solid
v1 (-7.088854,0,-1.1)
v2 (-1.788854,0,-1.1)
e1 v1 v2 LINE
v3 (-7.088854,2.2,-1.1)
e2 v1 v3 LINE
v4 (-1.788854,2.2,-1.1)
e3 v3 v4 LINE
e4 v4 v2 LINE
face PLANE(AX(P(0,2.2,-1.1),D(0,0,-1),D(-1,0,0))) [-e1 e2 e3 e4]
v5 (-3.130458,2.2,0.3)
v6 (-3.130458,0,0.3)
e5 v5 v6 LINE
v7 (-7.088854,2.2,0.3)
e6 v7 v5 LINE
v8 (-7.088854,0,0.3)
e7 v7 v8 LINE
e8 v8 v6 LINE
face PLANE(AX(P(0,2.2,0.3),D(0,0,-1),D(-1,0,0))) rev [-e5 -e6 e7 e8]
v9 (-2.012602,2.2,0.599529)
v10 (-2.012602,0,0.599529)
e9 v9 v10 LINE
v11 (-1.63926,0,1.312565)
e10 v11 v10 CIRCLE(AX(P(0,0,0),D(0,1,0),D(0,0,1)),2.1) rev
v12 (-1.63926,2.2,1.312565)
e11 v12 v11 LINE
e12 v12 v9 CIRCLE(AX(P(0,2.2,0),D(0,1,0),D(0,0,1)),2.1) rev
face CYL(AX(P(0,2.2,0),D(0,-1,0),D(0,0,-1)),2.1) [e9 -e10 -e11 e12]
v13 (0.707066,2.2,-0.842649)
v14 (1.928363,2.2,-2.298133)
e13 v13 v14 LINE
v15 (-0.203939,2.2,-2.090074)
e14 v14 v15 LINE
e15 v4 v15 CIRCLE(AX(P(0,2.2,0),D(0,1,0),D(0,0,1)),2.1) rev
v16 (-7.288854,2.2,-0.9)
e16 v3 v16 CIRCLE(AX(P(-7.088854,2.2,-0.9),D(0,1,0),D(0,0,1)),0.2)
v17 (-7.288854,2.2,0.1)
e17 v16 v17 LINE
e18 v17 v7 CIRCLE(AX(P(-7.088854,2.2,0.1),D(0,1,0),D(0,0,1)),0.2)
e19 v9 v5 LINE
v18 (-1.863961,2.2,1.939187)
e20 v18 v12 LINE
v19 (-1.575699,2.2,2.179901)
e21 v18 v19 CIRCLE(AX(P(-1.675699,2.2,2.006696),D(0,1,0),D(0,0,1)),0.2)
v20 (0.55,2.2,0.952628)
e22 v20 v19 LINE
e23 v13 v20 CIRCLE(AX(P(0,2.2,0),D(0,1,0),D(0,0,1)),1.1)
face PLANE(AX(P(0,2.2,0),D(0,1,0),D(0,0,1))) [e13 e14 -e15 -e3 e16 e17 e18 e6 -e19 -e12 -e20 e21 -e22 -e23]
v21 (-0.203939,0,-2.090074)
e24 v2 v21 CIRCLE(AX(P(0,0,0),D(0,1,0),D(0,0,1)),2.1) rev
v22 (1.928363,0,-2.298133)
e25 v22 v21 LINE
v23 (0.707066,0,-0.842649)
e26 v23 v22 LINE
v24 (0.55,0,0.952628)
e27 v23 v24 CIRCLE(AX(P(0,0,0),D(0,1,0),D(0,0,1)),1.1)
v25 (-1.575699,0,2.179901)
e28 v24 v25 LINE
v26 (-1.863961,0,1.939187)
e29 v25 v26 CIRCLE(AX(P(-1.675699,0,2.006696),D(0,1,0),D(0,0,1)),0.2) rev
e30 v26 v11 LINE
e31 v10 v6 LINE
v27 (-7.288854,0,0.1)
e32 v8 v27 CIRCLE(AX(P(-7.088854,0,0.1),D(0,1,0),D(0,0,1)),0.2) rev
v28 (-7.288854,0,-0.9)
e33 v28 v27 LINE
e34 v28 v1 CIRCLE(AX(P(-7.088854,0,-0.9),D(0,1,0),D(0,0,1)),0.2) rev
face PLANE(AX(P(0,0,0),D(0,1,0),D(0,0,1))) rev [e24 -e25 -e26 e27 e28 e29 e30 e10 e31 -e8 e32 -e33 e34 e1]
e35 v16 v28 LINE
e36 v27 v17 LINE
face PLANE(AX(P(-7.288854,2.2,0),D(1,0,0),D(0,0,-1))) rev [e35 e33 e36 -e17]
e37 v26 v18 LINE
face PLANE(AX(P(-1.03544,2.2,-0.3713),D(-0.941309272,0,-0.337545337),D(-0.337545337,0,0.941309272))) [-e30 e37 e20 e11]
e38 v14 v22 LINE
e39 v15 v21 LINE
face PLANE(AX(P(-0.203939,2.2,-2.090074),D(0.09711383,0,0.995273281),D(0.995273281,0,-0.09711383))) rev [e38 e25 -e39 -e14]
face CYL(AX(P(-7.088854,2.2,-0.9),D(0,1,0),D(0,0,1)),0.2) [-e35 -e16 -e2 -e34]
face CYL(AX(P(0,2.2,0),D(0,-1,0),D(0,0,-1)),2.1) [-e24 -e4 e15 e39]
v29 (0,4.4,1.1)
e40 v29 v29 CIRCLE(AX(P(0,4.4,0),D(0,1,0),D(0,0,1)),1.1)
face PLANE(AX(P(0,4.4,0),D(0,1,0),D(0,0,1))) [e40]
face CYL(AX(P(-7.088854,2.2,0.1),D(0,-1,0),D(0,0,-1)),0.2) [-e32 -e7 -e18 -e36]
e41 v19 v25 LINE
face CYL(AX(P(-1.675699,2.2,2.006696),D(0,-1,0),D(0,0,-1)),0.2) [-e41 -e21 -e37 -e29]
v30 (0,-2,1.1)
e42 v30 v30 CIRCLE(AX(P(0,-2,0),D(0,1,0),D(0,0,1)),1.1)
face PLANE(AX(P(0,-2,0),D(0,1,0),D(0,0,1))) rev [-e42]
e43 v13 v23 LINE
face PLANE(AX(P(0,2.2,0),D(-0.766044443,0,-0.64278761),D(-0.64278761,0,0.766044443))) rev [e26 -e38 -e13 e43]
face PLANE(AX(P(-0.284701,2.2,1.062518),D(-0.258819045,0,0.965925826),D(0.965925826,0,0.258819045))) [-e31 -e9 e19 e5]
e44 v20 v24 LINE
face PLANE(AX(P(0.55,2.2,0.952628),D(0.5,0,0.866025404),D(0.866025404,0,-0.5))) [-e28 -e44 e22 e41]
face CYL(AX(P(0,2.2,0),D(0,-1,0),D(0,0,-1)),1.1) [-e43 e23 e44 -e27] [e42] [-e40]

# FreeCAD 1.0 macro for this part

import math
import FreeCAD as App
import Part
import Sketcher
from FreeCAD import Vector
Q = App.Units.Quantity


def edges_at(feature, points):
    """Names of the edges that pass closest to the given points."""
    edges = feature.Shape.Edges
    near = lambda p: min(range(len(edges)), key=lambda i: edges[i].distToShape(Part.Vertex(*p))[0])
    return sorted({f"Edge{near(p) + 1}" for p in points})

doc = App.newDocument("Part")
body = doc.addObject("PartDesign::Body", "Body")

sketch1 = doc.addObject("Sketcher::SketchObject", "Sketch")
body.addObject(sketch1)
sketch1.AttachmentSupport = (doc.XZ_Plane, [""])
sketch1.MapMode = "FlatFace"
sketch1.addGeometry([
    Part.LineSegment(Vector(-1.788854, -1.1, 0), Vector(-7.288854, -1.1, 0)),
    Part.LineSegment(Vector(-7.288854, -1.1, 0), Vector(-7.288854, 0.3, 0)),
    Part.LineSegment(Vector(-7.288854, 0.3, 0), Vector(-3.130458, 0.3, 0)),
    Part.LineSegment(Vector(-3.130458, 0.3, 0), Vector(-2.012602, 0.599529, 0)),
    Part.ArcOfCircle(Part.Circle(Vector(0, 0, 0), Vector(0, 0, 1), 2.1), math.radians(141.315529), math.radians(163.411865)),
    Part.LineSegment(Vector(-1.63926, 1.312565, 0), Vector(-2.048076, 2.452628, 0)),
    Part.LineSegment(Vector(-2.048076, 2.452628, 0), Vector(0.55, 0.952628, 0)),
    Part.ArcOfCircle(Part.Circle(Vector(0, 0, 0), Vector(0, 0, 1), 1.1), math.radians(-50), math.radians(60)),
    Part.LineSegment(Vector(0.707066, -0.842649, 0), Vector(1.928363, -2.298133, 0)),
    Part.LineSegment(Vector(1.928363, -2.298133, 0), Vector(-0.203939, -2.090074, 0)),
    Part.ArcOfCircle(Part.Circle(Vector(0, 0, 0), Vector(0, 0, 1), 2.1), math.radians(-148.411864), math.radians(-95.572996)),
], False)
sketch1.addConstraint([
    Sketcher.Constraint("Coincident", 0, 2, 1, 1),
    Sketcher.Constraint("Coincident", 1, 2, 2, 1),
    Sketcher.Constraint("Coincident", 2, 2, 3, 1),
    Sketcher.Constraint("Coincident", 3, 2, 4, 2),
    Sketcher.Constraint("Coincident", 4, 1, 5, 1),
    Sketcher.Constraint("Coincident", 5, 2, 6, 1),
    Sketcher.Constraint("Tangent", 6, 2, 7, 2),
    Sketcher.Constraint("Coincident", 7, 1, 8, 1),
    Sketcher.Constraint("Coincident", 8, 2, 9, 1),
    Sketcher.Constraint("Tangent", 9, 2, 10, 2),
    Sketcher.Constraint("Coincident", 10, 1, 0, 1),
    Sketcher.Constraint("Horizontal", 0),
    Sketcher.Constraint("Vertical", 1),
    Sketcher.Constraint("Horizontal", 2),
    Sketcher.Constraint("Coincident", 4, 3, -1, 1),
    Sketcher.Constraint("Coincident", 7, 3, -1, 1),
    Sketcher.Constraint("Coincident", 10, 3, -1, 1),
    Sketcher.Constraint("Equal", 4, 10),
    Sketcher.Constraint("Radius", 4, 2.1),
    Sketcher.Constraint("Radius", 7, 1.1),
    Sketcher.Constraint("Angle", 3, Q("15 deg")),
    Sketcher.Constraint("Angle", 6, Q("-30 deg")),
    Sketcher.Constraint("Angle", 8, Q("-50 deg")),
    Sketcher.Constraint("Distance", 6, 3.0),
    Sketcher.Constraint("DistanceX", 0, 2, 0, 1, 5.5),
    Sketcher.Constraint("DistanceY", 1, 1, 1, 2, 1.4),
    Sketcher.Constraint("Distance", 8, 1.9),
    Sketcher.Constraint("DistanceY", 0, 2, -1, 1, 1.1),
    Sketcher.Constraint("DistanceX", 3, 2, -1, 1, 2.012602),
    Sketcher.Constraint("DistanceX", 2, 2, 4, 1, 1.491199),
    Sketcher.Constraint("DistanceX", 9, 2, 8, 2, 2.132302),
])
pad1 = doc.addObject("PartDesign::Pad", "Pad")
body.addObject(pad1)
pad1.Profile = sketch1
pad1.Length = 2.2
pad1.Reversed = True

sketch2 = doc.addObject("Sketcher::SketchObject", "Sketch001")
body.addObject(sketch2)
sketch2.AttachmentSupport = (doc.XZ_Plane, [""])
sketch2.MapMode = "FlatFace"
sketch2.addGeometry(Part.Circle(Vector(0, 0, 0), Vector(0, 0, 1), 1.1), False)
sketch2.addConstraint([
    Sketcher.Constraint("Coincident", 0, 3, -1, 1),
    Sketcher.Constraint("Diameter", 0, 2.2),
])
pad2 = doc.addObject("PartDesign::Pad", "Pad001")
body.addObject(pad2)
pad2.Profile = sketch2
pad2.Type = "TwoLengths"
pad2.Length = 4.4
pad2.Length2 = 2
pad2.Reversed = True
doc.recompute()

fillet = doc.addObject("PartDesign::Fillet", "Fillet")
body.addObject(fillet)
fillet.Base = (pad2, edges_at(pad2, [(-7.289, 1.1, 0.3), (-7.289, 1.1, -1.1), (-2.048, 1.1, 2.453)]))
fillet.Radius = 0.2

doc.recompute()
